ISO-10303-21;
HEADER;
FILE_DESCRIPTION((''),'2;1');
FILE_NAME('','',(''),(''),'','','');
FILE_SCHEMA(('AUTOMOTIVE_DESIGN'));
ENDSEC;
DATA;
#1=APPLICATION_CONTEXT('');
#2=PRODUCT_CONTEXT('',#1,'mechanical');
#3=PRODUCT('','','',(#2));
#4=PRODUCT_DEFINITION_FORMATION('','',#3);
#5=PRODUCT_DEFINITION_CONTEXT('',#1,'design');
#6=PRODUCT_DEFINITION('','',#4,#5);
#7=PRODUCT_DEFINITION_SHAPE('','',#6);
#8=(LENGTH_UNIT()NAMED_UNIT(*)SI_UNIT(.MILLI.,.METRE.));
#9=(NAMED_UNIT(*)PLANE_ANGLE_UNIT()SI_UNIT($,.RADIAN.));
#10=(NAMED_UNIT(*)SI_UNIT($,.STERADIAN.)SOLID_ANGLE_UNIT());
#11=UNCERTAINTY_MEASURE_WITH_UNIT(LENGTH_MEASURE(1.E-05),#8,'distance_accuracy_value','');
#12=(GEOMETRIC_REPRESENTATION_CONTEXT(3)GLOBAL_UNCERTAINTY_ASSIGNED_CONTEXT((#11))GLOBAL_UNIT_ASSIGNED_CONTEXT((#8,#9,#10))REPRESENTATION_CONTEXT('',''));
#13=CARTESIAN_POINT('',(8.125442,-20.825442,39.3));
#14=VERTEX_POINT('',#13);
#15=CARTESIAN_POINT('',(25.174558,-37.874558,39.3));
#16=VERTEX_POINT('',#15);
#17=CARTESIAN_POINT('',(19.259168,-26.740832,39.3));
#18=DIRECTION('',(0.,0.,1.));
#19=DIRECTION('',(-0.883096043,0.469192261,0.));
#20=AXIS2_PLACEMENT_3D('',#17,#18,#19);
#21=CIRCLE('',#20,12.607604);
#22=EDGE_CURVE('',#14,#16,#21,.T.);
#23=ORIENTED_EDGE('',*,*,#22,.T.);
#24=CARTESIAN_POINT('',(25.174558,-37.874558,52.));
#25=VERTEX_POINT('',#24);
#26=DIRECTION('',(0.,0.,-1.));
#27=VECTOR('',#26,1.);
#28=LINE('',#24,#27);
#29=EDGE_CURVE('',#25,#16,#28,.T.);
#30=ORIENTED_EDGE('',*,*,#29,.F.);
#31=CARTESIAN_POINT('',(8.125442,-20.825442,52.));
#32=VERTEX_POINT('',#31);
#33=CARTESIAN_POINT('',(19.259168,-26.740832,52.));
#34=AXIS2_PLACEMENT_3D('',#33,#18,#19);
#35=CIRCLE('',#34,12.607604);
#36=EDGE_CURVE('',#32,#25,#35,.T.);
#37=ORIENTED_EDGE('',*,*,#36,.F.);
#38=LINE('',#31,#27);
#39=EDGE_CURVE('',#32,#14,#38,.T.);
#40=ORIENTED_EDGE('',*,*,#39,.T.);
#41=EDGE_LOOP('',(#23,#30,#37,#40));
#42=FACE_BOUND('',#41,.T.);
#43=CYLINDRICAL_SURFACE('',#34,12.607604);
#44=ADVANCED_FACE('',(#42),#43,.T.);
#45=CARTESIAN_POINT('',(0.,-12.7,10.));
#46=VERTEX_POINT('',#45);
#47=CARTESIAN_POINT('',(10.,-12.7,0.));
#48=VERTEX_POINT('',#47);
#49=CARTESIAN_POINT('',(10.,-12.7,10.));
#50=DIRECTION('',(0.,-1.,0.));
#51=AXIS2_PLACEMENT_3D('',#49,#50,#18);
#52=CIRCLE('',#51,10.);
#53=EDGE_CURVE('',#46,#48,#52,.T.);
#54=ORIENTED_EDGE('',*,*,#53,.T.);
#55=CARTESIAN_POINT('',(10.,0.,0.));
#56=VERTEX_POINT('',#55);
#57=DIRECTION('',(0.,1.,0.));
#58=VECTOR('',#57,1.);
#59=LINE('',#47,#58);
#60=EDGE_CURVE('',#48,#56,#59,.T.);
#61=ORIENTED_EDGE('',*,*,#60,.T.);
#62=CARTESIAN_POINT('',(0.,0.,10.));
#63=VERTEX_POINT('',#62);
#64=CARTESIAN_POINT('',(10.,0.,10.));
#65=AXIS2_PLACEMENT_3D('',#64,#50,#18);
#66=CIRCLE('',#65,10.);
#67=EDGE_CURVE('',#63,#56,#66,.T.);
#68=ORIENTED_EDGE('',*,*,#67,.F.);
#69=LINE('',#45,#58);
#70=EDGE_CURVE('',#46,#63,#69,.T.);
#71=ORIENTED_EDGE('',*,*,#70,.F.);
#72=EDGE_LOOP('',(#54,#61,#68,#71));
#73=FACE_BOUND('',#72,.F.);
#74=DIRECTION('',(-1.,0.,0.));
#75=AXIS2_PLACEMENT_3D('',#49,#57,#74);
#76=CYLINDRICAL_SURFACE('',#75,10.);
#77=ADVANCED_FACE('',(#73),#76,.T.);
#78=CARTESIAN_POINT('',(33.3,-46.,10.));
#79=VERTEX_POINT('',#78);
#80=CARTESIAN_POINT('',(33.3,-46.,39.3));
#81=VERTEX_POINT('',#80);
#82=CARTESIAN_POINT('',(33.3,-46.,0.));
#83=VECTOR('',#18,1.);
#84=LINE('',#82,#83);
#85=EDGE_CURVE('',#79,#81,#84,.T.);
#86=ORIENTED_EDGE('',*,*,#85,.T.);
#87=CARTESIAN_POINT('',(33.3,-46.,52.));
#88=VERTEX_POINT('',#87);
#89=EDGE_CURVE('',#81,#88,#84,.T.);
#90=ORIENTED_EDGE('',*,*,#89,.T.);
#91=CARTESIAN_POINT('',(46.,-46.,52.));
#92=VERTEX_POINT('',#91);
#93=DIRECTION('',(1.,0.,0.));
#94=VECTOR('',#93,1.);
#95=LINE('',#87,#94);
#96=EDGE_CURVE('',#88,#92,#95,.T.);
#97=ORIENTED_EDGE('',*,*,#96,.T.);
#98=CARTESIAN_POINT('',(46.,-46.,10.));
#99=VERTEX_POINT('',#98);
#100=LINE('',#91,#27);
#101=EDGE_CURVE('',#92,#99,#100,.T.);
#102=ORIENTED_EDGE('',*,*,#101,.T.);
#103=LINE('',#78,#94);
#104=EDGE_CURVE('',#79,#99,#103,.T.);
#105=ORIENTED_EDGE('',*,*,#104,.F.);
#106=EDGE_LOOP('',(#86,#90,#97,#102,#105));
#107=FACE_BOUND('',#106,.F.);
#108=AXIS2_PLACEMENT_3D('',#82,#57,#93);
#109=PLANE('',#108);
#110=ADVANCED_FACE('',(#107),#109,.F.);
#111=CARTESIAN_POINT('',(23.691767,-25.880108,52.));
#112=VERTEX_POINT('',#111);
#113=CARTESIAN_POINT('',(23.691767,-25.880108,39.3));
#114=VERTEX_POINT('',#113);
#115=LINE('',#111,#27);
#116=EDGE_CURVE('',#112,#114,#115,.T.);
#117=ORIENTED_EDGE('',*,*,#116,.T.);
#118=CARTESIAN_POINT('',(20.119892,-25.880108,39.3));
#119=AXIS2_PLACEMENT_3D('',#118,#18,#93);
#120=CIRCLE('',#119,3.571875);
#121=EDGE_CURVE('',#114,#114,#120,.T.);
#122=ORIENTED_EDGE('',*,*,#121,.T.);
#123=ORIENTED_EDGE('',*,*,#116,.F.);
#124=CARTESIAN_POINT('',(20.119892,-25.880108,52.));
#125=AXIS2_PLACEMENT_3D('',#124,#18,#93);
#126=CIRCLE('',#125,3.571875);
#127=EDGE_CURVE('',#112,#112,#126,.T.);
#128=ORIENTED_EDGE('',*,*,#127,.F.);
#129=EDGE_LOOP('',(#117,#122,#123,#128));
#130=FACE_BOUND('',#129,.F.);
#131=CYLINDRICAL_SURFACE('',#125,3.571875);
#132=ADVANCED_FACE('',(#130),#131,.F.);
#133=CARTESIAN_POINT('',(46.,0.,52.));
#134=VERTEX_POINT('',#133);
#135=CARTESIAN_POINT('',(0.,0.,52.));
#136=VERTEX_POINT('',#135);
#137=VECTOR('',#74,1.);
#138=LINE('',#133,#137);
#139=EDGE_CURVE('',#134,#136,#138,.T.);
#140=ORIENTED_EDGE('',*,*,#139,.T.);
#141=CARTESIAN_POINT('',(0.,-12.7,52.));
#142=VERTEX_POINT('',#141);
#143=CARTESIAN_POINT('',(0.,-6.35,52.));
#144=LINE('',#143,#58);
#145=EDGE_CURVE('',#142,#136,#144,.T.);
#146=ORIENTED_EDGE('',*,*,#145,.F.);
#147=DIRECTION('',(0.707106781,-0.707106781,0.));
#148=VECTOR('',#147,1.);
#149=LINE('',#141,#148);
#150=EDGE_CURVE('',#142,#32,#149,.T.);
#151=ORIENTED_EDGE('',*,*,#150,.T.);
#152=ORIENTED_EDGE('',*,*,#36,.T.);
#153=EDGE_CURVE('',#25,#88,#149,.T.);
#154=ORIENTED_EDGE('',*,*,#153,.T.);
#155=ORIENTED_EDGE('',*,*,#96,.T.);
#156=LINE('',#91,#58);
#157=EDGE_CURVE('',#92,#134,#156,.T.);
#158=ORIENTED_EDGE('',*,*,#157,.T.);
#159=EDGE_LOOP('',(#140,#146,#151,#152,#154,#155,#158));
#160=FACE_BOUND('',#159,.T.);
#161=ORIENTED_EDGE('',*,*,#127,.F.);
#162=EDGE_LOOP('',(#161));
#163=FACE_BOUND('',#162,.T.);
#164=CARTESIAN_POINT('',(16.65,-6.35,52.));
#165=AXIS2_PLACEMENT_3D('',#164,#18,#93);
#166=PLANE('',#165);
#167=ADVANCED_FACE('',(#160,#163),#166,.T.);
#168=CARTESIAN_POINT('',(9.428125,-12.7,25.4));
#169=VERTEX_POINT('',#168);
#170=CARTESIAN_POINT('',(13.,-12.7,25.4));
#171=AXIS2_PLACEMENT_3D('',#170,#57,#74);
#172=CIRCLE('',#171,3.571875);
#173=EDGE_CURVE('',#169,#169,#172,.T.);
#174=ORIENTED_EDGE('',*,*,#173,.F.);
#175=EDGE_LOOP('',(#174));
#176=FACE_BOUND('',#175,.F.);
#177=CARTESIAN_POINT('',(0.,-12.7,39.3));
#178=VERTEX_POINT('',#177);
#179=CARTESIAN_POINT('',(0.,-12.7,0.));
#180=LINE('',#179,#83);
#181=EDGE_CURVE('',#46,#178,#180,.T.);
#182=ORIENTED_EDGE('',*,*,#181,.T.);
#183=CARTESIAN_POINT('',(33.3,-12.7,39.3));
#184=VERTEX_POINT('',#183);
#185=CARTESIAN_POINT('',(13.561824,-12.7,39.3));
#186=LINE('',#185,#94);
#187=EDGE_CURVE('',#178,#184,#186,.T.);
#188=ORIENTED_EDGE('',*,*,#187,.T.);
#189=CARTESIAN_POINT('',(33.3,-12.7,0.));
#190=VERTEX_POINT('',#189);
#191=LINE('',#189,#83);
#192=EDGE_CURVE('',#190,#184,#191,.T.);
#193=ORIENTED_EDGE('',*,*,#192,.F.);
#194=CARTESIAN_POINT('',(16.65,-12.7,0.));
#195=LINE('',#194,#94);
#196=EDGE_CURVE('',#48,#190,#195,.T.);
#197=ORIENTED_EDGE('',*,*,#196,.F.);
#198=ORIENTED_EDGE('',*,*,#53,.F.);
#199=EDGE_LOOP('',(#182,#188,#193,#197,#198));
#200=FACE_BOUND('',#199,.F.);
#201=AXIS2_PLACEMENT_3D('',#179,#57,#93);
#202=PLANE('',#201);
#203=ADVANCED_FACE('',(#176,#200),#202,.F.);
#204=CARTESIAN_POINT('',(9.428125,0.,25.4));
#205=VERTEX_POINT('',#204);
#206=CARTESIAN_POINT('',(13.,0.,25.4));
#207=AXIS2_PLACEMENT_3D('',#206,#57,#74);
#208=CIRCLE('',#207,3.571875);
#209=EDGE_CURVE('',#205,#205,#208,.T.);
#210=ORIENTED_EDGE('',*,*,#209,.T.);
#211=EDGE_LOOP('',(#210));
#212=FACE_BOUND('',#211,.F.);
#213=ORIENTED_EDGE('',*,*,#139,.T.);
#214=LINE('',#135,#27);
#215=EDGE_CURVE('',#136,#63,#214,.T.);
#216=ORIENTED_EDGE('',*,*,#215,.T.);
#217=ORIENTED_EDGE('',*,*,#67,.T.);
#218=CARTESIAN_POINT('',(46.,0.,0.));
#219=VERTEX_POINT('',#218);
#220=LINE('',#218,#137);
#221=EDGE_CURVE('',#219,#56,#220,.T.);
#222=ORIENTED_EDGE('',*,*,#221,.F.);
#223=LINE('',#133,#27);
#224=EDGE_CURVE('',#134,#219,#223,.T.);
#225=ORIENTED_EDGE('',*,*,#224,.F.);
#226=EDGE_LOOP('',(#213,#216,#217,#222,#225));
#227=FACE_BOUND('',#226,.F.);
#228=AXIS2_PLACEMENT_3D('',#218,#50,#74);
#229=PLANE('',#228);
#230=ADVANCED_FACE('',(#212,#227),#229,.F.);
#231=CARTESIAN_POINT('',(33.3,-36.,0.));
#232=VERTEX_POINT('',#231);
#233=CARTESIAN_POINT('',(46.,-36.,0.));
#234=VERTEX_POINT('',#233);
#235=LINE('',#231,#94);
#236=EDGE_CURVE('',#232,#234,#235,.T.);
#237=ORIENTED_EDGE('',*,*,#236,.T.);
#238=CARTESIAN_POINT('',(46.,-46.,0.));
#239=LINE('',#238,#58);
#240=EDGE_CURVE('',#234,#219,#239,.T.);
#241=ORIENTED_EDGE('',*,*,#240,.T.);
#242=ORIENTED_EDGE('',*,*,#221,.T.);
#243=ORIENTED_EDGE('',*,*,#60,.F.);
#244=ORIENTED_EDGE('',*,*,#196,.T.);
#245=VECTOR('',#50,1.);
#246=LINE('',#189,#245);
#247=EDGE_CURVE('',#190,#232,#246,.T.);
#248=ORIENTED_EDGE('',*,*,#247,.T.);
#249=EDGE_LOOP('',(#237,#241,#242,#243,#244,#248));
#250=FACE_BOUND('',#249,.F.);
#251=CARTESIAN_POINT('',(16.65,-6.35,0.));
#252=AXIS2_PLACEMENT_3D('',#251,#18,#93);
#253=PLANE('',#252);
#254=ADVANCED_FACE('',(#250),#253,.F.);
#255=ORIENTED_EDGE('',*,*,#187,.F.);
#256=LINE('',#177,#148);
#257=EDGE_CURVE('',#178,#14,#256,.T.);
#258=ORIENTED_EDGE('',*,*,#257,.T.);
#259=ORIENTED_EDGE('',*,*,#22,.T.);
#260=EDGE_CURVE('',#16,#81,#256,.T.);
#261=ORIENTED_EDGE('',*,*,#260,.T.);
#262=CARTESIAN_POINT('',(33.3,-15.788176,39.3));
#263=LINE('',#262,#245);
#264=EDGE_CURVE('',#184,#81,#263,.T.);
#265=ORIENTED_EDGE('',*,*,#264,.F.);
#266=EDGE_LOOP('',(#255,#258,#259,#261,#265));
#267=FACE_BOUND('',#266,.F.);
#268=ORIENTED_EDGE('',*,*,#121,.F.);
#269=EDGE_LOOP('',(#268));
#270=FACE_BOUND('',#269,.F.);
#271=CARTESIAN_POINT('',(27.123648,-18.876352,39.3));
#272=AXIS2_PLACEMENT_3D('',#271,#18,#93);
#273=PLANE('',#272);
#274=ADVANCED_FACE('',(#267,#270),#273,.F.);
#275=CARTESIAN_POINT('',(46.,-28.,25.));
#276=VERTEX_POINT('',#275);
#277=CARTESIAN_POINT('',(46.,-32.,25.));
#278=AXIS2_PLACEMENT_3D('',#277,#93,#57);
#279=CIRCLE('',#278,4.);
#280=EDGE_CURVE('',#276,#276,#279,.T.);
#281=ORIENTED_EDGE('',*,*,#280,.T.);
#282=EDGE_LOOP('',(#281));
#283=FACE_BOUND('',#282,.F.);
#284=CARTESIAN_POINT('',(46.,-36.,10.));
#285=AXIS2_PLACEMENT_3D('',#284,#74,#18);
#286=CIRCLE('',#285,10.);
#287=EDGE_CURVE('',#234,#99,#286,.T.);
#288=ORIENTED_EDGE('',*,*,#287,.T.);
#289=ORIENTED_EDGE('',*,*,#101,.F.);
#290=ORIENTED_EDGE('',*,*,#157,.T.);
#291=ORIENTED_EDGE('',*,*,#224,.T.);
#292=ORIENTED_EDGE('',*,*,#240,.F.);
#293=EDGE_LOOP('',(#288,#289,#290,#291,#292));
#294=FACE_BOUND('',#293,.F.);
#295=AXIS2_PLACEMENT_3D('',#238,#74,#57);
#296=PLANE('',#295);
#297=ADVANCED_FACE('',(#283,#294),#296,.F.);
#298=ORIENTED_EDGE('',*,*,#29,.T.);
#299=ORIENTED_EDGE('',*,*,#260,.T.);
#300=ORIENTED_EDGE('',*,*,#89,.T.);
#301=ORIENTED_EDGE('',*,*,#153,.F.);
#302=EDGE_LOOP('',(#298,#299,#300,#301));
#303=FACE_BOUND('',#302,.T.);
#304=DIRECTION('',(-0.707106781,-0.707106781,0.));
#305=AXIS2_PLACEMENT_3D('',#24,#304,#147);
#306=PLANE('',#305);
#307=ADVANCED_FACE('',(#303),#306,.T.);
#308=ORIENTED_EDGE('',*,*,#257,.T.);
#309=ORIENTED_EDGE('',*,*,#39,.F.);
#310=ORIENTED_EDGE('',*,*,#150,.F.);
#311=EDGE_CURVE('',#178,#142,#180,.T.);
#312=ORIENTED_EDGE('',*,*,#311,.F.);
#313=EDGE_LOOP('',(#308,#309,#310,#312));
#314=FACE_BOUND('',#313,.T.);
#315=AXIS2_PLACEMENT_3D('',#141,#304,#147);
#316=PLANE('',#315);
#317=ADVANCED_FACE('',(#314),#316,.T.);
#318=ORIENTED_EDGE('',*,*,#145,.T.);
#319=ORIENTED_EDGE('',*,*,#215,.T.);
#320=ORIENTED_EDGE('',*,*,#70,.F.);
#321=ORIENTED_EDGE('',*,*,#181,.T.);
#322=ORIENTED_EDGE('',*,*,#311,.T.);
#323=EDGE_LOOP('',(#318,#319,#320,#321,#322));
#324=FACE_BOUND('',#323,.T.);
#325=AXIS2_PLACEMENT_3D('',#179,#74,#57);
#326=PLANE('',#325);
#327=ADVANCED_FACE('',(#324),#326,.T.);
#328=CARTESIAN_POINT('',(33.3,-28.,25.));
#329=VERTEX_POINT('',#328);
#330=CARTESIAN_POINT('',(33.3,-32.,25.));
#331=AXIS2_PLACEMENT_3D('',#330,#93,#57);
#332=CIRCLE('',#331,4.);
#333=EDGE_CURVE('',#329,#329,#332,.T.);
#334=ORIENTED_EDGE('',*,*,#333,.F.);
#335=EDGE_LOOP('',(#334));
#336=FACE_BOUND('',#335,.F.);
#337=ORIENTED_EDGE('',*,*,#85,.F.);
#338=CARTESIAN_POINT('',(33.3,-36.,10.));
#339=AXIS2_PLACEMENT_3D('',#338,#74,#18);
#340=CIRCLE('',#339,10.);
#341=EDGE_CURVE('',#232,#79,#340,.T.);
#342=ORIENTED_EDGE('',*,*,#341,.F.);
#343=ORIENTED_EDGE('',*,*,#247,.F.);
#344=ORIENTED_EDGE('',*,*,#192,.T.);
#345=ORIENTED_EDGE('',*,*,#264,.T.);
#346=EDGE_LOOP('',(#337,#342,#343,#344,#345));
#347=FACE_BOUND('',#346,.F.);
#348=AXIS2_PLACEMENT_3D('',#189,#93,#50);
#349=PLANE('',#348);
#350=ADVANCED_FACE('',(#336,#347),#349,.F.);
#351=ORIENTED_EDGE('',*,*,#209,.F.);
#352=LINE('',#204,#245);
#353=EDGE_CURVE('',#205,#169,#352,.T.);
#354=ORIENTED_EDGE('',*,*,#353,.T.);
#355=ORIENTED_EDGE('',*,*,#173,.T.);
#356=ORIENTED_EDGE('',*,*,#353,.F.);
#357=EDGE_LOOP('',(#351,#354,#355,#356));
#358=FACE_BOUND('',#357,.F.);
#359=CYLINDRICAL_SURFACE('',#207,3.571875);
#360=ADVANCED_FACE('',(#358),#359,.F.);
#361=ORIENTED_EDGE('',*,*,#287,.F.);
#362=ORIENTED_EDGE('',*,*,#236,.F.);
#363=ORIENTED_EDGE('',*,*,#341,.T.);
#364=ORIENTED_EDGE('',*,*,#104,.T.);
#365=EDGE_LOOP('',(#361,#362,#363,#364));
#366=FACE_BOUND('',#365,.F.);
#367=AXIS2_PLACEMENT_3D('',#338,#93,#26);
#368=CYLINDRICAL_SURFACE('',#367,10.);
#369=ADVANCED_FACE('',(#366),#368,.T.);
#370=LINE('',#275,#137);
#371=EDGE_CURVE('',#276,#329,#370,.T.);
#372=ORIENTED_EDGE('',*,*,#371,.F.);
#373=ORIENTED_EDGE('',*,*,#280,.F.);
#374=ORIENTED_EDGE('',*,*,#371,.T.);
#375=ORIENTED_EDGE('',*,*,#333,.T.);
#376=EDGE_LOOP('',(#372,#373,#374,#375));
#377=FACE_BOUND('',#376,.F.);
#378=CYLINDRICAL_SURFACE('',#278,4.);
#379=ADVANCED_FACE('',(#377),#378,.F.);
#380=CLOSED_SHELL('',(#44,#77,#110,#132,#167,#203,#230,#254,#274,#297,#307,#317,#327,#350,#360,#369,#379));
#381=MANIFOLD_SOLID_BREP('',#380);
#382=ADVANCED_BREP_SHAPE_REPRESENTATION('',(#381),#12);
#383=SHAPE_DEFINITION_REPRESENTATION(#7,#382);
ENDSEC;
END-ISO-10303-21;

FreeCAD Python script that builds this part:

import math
import FreeCAD as App
import Part
import Sketcher
Q = App.Units.Quantity


def edges_at(feature, points):
    """Names of the edges that pass closest to the given points."""
    edges = feature.Shape.Edges
    near = lambda p: min(range(len(edges)), key=lambda i: edges[i].distToShape(Part.Vertex(*p))[0])
    return sorted({f"Edge{near(p) + 1}" for p in points})

doc = App.newDocument("Part")
body = doc.addObject("PartDesign::Body", "Body")

# Sketch on XY plane
sketch1 = doc.addObject("Sketcher::SketchObject", "Sketch")
body.addObject(sketch1)
sketch1.AttachmentSupport = (doc.XY_Plane, [""])
sketch1.MapMode = "FlatFace"
sketch1.addGeometry([
    Part.LineSegment(App.Vector(0, 0, 0), App.Vector(0, -13, 0)),  # 0
    Part.LineSegment(App.Vector(0, -13, 0), App.Vector(33, -13, 0)),  # 1
    Part.LineSegment(App.Vector(33, -13, 0), App.Vector(33, -46, 0)),  # 2
    Part.LineSegment(App.Vector(33, -46, 0), App.Vector(46, -46, 0)),  # 3
    Part.LineSegment(App.Vector(46, -46, 0), App.Vector(46, 0, 0)),  # 4
    Part.LineSegment(App.Vector(46, 0, 0), App.Vector(0, 0, 0)),  # 5
], False)
sketch1.addConstraint([
    Sketcher.Constraint("Coincident", 0, 2, 1, 1),
    Sketcher.Constraint("Coincident", 1, 2, 2, 1),
    Sketcher.Constraint("Coincident", 2, 2, 3, 1),
    Sketcher.Constraint("Coincident", 3, 2, 4, 1),
    Sketcher.Constraint("Coincident", 4, 2, 5, 1),
    Sketcher.Constraint("Coincident", 5, 2, 0, 1),
    Sketcher.Constraint("Vertical", 0),
    Sketcher.Constraint("Horizontal", 1),
    Sketcher.Constraint("Vertical", 2),
    Sketcher.Constraint("Horizontal", 3),
    Sketcher.Constraint("Vertical", 4),
    Sketcher.Constraint("Horizontal", 5),
    Sketcher.Constraint("Coincident", 5, 2, -1, 1),
    Sketcher.Constraint("Equal", 3, 0),
    Sketcher.Constraint("Equal", 1, 2),
    Sketcher.Constraint("DistanceX", 5, 2, 5, 1, 46.0),
    Sketcher.Constraint("DistanceX", 1, 1, 1, 2, 33.3),
])
pad1 = doc.addObject("PartDesign::Pad", "Pad")
body.addObject(pad1)
pad1.Profile = sketch1
pad1.Length = 52

# Sketch on XY plane
sketch2 = doc.addObject("Sketcher::SketchObject", "Sketch001")
body.addObject(sketch2)
sketch2.AttachmentSupport = (doc.XY_Plane, [""])
sketch2.MapMode = "FlatFace"
sketch2.AttachmentOffset = App.Placement(App.Vector(0, 0, 52), App.Rotation())
sketch2.addGeometry([
    Part.LineSegment(App.Vector(46, -46, 0), App.Vector(46, 0, 0)),  # 0
    Part.LineSegment(App.Vector(46, 0, 0), App.Vector(0, 0, 0)),  # 1
    Part.LineSegment(App.Vector(0, 0, 0), App.Vector(0, -13, 0)),  # 2
    Part.LineSegment(App.Vector(0, -13, 0), App.Vector(8, -21, 0)),  # 3
    Part.ArcOfCircle(Part.Circle(App.Vector(19, -27, 0), App.Vector(0, 0, 1), 13), math.radians(152), math.radians(298)),  # 4
    Part.LineSegment(App.Vector(25, -38, 0), App.Vector(33, -46, 0)),  # 5
    Part.LineSegment(App.Vector(33, -46, 0), App.Vector(46, -46, 0)),  # 6
], False)
sketch2.addConstraint([
    Sketcher.Constraint("Coincident", 0, 2, 1, 1),
    Sketcher.Constraint("Coincident", 1, 2, 2, 1),
    Sketcher.Constraint("Coincident", 2, 2, 3, 1),
    Sketcher.Constraint("Coincident", 3, 2, 4, 1),
    Sketcher.Constraint("Coincident", 4, 2, 5, 1),
    Sketcher.Constraint("Coincident", 5, 2, 6, 1),
    Sketcher.Constraint("Coincident", 6, 2, 0, 1),
    Sketcher.Constraint("Vertical", 0),
    Sketcher.Constraint("Horizontal", 1),
    Sketcher.Constraint("Vertical", 2),
    Sketcher.Constraint("Horizontal", 6),
    Sketcher.Constraint("Coincident", 1, 2, -1, 1),
    Sketcher.Constraint("Parallel", 3, 5),
    Sketcher.Constraint("Equal", 1, 0),
    Sketcher.Constraint("Equal", 6, 2),
    Sketcher.Constraint("Equal", 3, 5),
    Sketcher.Constraint("DistanceX", 1, 2, 1, 1, 46.0),
    Sketcher.Constraint("Angle", 3, Q("-45 deg")),
    Sketcher.Constraint("DistanceX", 6, 1, 6, 2, 12.7),
    Sketcher.Constraint("Radius", 4, 12.607604),
    Sketcher.Constraint("Distance", 3, 11.49111),
])
pad2 = doc.addObject("PartDesign::Pad", "Pad001")
body.addObject(pad2)
pad2.Profile = sketch2
pad2.Length = 12.7
pad2.Reversed = True

# Sketch on YZ plane
sketch3 = doc.addObject("Sketcher::SketchObject", "Sketch002")
body.addObject(sketch3)
sketch3.AttachmentSupport = (doc.YZ_Plane, [""])
sketch3.MapMode = "FlatFace"
sketch3.AttachmentOffset = App.Placement(App.Vector(0, 0, 46), App.Rotation())
sketch3.addGeometry(Part.Circle(App.Vector(-32, 25, 0), App.Vector(0, 0, 1), 4), False)
sketch3.addConstraint([
    Sketcher.Constraint("Diameter", 0, 8.0),
    Sketcher.Constraint("DistanceX", 0, 3, -1, 1, 32.0),
    Sketcher.Constraint("DistanceY", -1, 1, 0, 3, 25.0),
])
pocket1 = doc.addObject("PartDesign::Pocket", "Pocket")
body.addObject(pocket1)
pocket1.Profile = sketch3
pocket1.Type = "ThroughAll"

# Sketch on XZ plane
sketch4 = doc.addObject("Sketcher::SketchObject", "Sketch003")
body.addObject(sketch4)
sketch4.AttachmentSupport = (doc.XZ_Plane, [""])
sketch4.MapMode = "FlatFace"
sketch4.addGeometry(Part.Circle(App.Vector(13, 25.4, 0), App.Vector(0, 0, 1), 3.6), False)
sketch4.addConstraint([
    Sketcher.Constraint("DistanceX", -1, 1, 0, 3, 13.0),
    Sketcher.Constraint("DistanceY", -1, 1, 0, 3, 25.4),
    Sketcher.Constraint("Diameter", 0, 7.14375),
])
pocket2 = doc.addObject("PartDesign::Pocket", "Pocket001")
body.addObject(pocket2)
pocket2.Profile = sketch4
pocket2.Length = 25
pocket2.Reversed = True

# Sketch on XY plane
sketch5 = doc.addObject("Sketcher::SketchObject", "Sketch004")
body.addObject(sketch5)
sketch5.AttachmentSupport = (doc.XY_Plane, [""])
sketch5.MapMode = "FlatFace"
sketch5.AttachmentOffset = App.Placement(App.Vector(0, 0, 52), App.Rotation())
sketch5.addGeometry(Part.Circle(App.Vector(20.1, -25.9, 0), App.Vector(0, 0, 1), 3.6), False)
sketch5.addConstraint([
    Sketcher.Constraint("Diameter", 0, 7.14375),
    Sketcher.Constraint("DistanceX", -1, 1, 0, 3, 20.119892),
    Sketcher.Constraint("DistanceY", 0, 3, -1, 1, 25.880108),
])
pocket3 = doc.addObject("PartDesign::Pocket", "Pocket002")
body.addObject(pocket3)
pocket3.Profile = sketch5
pocket3.Length = 25
doc.recompute()

fillet = doc.addObject("PartDesign::Fillet", "Fillet")
body.addObject(fillet)
fillet.Base = (pocket3, edges_at(pocket3, [(39.65, -46, 0), (0, -6.35, 0)]))
fillet.Radius = 10

doc.recompute()
